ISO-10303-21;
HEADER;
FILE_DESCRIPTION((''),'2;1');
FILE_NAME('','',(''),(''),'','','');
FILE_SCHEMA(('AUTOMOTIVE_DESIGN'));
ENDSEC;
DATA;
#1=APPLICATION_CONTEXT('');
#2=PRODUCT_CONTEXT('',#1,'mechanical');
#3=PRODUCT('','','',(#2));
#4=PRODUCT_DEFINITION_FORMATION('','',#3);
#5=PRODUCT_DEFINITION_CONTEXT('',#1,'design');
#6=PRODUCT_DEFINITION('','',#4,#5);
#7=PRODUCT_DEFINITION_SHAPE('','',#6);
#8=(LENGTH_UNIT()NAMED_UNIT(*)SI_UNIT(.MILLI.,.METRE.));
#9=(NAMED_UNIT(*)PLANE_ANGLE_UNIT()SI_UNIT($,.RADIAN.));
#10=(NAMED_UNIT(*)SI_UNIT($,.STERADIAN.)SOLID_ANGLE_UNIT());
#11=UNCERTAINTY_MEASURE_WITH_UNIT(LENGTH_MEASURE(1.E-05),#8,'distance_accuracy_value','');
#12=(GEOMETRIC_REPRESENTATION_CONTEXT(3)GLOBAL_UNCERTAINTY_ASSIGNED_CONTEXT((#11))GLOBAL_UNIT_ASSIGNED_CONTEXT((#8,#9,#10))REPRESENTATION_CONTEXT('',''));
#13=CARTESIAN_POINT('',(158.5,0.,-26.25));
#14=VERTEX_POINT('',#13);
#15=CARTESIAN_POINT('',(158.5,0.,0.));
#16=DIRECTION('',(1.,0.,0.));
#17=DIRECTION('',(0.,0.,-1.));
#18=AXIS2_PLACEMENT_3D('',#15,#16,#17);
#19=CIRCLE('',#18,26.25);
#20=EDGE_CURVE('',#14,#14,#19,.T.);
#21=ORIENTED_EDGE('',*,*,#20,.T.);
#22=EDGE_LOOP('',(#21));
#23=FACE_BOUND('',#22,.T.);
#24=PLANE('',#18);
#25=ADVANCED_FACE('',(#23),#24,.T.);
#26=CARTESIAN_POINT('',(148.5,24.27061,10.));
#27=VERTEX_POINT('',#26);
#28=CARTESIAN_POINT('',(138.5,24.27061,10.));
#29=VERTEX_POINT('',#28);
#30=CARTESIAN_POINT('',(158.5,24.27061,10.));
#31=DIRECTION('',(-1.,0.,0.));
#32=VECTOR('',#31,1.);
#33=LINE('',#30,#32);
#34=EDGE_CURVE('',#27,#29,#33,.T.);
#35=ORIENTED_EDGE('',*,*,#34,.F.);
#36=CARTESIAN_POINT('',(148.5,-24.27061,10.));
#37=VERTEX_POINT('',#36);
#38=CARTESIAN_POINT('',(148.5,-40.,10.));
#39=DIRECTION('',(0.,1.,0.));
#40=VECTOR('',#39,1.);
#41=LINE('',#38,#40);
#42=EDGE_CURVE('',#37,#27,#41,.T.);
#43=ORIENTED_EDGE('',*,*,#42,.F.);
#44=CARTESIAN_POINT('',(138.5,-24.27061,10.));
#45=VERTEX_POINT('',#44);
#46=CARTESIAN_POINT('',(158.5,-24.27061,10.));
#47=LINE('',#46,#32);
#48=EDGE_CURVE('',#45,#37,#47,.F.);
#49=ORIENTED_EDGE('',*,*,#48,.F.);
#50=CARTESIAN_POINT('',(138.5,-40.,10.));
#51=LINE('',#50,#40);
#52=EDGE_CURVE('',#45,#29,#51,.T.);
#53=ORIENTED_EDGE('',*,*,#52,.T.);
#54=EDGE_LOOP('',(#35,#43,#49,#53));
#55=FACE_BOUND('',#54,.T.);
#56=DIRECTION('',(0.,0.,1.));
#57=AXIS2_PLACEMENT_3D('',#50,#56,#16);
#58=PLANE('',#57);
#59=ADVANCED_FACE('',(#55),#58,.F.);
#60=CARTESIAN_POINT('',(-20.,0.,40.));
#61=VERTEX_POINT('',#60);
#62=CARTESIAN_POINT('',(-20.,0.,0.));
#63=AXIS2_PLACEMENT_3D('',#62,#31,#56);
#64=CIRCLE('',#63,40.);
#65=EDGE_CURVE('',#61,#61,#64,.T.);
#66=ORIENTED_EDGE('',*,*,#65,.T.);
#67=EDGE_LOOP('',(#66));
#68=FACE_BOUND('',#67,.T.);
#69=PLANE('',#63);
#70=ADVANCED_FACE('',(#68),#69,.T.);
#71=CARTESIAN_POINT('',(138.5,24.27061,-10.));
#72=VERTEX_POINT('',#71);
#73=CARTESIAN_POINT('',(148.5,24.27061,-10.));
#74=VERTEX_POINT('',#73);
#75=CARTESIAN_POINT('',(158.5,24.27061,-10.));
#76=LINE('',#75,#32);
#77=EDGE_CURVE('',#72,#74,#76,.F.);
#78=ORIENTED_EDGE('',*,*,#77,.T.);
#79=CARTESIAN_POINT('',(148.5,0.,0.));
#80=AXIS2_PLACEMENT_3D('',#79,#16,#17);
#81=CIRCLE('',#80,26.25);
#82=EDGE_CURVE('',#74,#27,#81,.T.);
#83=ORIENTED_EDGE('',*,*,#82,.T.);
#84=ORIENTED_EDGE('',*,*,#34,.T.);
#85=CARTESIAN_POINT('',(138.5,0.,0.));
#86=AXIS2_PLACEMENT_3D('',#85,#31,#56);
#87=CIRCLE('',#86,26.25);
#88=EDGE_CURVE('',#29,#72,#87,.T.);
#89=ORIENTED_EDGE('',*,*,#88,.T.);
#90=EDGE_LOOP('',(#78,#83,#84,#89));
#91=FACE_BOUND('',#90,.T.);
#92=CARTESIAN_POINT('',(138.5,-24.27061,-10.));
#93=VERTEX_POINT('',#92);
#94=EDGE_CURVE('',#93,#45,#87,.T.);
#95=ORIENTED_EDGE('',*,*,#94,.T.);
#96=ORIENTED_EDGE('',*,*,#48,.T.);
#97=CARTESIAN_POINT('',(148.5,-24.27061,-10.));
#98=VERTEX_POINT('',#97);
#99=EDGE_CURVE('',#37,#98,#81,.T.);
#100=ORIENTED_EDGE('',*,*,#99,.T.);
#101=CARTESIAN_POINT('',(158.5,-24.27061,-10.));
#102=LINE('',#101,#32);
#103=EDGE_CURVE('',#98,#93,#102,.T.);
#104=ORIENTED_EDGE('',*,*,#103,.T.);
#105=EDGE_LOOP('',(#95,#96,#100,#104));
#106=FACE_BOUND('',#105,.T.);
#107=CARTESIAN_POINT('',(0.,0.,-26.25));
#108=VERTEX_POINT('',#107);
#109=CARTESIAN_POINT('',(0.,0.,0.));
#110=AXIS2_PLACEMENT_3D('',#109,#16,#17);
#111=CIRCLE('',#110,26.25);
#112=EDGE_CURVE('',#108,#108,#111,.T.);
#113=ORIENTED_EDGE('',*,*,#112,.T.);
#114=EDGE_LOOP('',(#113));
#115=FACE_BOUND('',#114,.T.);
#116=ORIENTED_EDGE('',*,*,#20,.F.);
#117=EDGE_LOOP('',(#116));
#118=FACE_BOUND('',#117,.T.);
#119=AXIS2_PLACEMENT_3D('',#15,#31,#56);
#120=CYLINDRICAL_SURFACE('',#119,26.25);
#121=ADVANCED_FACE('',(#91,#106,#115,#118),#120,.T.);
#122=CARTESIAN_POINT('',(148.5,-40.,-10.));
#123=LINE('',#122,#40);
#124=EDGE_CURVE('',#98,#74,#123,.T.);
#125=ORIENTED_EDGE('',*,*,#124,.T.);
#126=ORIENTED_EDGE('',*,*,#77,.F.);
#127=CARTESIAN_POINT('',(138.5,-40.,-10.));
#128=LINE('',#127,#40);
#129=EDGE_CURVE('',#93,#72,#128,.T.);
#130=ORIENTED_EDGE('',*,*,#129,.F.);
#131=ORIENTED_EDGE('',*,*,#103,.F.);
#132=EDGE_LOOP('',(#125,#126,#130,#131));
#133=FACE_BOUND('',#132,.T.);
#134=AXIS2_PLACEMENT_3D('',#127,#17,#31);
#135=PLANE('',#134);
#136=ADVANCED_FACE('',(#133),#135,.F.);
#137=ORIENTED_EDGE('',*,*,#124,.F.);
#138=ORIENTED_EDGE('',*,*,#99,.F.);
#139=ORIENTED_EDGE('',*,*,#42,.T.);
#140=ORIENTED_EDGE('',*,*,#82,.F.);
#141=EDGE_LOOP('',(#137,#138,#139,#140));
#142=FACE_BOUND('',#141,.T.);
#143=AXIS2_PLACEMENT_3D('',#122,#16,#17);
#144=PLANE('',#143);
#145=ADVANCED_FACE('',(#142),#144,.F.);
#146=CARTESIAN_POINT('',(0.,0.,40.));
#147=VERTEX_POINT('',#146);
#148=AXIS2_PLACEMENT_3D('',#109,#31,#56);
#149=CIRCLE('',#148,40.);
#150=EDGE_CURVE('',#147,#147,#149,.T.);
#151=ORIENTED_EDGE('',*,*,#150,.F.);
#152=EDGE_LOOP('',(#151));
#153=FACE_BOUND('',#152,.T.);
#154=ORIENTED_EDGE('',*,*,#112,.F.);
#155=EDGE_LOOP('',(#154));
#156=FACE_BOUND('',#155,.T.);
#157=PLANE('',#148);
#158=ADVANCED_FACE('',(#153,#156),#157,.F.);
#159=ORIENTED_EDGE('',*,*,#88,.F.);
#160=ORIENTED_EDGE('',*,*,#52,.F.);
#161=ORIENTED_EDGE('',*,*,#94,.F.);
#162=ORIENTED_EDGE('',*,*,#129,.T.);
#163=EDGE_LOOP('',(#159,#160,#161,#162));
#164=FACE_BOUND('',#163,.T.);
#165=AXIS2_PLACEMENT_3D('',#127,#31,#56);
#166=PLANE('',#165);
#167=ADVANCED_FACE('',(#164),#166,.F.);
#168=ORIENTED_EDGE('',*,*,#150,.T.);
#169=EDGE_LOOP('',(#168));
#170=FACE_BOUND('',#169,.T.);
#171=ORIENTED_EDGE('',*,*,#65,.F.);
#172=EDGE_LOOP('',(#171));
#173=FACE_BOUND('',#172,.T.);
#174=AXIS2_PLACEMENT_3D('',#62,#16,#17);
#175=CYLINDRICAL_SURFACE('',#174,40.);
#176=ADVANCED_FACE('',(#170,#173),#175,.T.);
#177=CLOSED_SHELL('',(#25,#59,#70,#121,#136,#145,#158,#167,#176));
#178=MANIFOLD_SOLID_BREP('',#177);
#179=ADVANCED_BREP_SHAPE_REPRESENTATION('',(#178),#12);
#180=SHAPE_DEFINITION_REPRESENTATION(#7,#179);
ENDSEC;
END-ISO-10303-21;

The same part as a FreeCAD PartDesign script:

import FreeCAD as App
import Part
import Sketcher
from FreeCAD import Vector

doc = App.newDocument("Part")
params = doc.addObject("Spreadsheet::Sheet", "Params")
for row, (alias, value) in enumerate([
    ("sketch1_diameter", "52.5 mm"),
    ("pad1_length", "158.5 mm"),
    ("sketch2_diameter", "80 mm"),
    ("pad2_length", "20 mm"),
    ("sketch3_width", "10 mm"),
    ("sketch3_height", "20 mm"),
], start=1):
    params.set(f"A{row}", alias)
    params.set(f"B{row}", "=" + value)
    params.setAlias(f"B{row}", alias)

body = doc.addObject("PartDesign::Body", "Body")

# Sketch on YZ plane
sketch1 = body.newObject("Sketcher::SketchObject", "Sketch")
sketch1.AttachmentSupport = (doc.getObject("YZ_Plane"), [""])
sketch1.MapMode = "FlatFace"
sketch1.addGeometry(Part.Circle(Vector(0, 0, 0), Vector(0, 0, 1), 26), False)
sketch1.addConstraint([
    Sketcher.Constraint("Coincident", 0, 3, -1, 1),
    Sketcher.Constraint("Diameter", 0, 52.5),
])
sketch1.setExpression("Constraints[1]", "Params.sketch1_diameter")
pad1 = body.newObject("PartDesign::Pad", "Pad")
pad1.Profile = sketch1
pad1.setExpression("Length", "Params.pad1_length")

# Sketch on YZ plane
sketch2 = body.newObject("Sketcher::SketchObject", "Sketch001")
sketch2.AttachmentSupport = (doc.getObject("YZ_Plane"), [""])
sketch2.MapMode = "FlatFace"
sketch2.addGeometry(Part.Circle(Vector(0, 0, 0), Vector(0, 0, 1), 40), False)
sketch2.addConstraint([
    Sketcher.Constraint("Coincident", 0, 3, -1, 1),
    Sketcher.Constraint("Diameter", 0, 80.0),
])
sketch2.setExpression("Constraints[1]", "Params.sketch2_diameter")
pad2 = body.newObject("PartDesign::Pad", "Pad001")
pad2.Profile = sketch2
pad2.setExpression("Length", "Params.pad2_length")
pad2.Reversed = True

# Sketch on XZ plane
sketch3 = body.newObject("Sketcher::SketchObject", "Sketch002")
sketch3.AttachmentSupport = (doc.getObject("XZ_Plane"), [""])
sketch3.MapMode = "FlatFace"
sketch3.addGeometry([
    Part.LineSegment(Vector(138, -10, 0), Vector(138, 10, 0)),
    Part.LineSegment(Vector(138, 10, 0), Vector(148, 10, 0)),
    Part.LineSegment(Vector(148, 10, 0), Vector(148, -10, 0)),
    Part.LineSegment(Vector(148, -10, 0), Vector(138, -10, 0)),
], False)
sketch3.addConstraint([
    Sketcher.Constraint("Coincident", 0, 2, 1, 1),
    Sketcher.Constraint("Coincident", 1, 2, 2, 1),
    Sketcher.Constraint("Coincident", 2, 2, 3, 1),
    Sketcher.Constraint("Coincident", 3, 2, 0, 1),
    Sketcher.Constraint("Vertical", 0),
    Sketcher.Constraint("Horizontal", 1),
    Sketcher.Constraint("Vertical", 2),
    Sketcher.Constraint("Horizontal", 3),
    Sketcher.Constraint("DistanceX", 1, 1, 1, 2, 10.0),
    Sketcher.Constraint("DistanceY", 0, 1, 0, 2, 20.0),
    Sketcher.Constraint("DistanceY", -1, 1, 0, 2, 10.0),
    Sketcher.Constraint("DistanceX", -1, 1, 0, 2, 138.5),
])
sketch3.setExpression("Constraints[8]", "Params.sketch3_width")
sketch3.setExpression("Constraints[9]", "Params.sketch3_height")
pocket1 = body.newObject("PartDesign::Pocket", "Pocket")
pocket1.Profile = sketch3
pocket1.Type = "ThroughAll"
pocket1.Midplane = True

doc.recompute()
